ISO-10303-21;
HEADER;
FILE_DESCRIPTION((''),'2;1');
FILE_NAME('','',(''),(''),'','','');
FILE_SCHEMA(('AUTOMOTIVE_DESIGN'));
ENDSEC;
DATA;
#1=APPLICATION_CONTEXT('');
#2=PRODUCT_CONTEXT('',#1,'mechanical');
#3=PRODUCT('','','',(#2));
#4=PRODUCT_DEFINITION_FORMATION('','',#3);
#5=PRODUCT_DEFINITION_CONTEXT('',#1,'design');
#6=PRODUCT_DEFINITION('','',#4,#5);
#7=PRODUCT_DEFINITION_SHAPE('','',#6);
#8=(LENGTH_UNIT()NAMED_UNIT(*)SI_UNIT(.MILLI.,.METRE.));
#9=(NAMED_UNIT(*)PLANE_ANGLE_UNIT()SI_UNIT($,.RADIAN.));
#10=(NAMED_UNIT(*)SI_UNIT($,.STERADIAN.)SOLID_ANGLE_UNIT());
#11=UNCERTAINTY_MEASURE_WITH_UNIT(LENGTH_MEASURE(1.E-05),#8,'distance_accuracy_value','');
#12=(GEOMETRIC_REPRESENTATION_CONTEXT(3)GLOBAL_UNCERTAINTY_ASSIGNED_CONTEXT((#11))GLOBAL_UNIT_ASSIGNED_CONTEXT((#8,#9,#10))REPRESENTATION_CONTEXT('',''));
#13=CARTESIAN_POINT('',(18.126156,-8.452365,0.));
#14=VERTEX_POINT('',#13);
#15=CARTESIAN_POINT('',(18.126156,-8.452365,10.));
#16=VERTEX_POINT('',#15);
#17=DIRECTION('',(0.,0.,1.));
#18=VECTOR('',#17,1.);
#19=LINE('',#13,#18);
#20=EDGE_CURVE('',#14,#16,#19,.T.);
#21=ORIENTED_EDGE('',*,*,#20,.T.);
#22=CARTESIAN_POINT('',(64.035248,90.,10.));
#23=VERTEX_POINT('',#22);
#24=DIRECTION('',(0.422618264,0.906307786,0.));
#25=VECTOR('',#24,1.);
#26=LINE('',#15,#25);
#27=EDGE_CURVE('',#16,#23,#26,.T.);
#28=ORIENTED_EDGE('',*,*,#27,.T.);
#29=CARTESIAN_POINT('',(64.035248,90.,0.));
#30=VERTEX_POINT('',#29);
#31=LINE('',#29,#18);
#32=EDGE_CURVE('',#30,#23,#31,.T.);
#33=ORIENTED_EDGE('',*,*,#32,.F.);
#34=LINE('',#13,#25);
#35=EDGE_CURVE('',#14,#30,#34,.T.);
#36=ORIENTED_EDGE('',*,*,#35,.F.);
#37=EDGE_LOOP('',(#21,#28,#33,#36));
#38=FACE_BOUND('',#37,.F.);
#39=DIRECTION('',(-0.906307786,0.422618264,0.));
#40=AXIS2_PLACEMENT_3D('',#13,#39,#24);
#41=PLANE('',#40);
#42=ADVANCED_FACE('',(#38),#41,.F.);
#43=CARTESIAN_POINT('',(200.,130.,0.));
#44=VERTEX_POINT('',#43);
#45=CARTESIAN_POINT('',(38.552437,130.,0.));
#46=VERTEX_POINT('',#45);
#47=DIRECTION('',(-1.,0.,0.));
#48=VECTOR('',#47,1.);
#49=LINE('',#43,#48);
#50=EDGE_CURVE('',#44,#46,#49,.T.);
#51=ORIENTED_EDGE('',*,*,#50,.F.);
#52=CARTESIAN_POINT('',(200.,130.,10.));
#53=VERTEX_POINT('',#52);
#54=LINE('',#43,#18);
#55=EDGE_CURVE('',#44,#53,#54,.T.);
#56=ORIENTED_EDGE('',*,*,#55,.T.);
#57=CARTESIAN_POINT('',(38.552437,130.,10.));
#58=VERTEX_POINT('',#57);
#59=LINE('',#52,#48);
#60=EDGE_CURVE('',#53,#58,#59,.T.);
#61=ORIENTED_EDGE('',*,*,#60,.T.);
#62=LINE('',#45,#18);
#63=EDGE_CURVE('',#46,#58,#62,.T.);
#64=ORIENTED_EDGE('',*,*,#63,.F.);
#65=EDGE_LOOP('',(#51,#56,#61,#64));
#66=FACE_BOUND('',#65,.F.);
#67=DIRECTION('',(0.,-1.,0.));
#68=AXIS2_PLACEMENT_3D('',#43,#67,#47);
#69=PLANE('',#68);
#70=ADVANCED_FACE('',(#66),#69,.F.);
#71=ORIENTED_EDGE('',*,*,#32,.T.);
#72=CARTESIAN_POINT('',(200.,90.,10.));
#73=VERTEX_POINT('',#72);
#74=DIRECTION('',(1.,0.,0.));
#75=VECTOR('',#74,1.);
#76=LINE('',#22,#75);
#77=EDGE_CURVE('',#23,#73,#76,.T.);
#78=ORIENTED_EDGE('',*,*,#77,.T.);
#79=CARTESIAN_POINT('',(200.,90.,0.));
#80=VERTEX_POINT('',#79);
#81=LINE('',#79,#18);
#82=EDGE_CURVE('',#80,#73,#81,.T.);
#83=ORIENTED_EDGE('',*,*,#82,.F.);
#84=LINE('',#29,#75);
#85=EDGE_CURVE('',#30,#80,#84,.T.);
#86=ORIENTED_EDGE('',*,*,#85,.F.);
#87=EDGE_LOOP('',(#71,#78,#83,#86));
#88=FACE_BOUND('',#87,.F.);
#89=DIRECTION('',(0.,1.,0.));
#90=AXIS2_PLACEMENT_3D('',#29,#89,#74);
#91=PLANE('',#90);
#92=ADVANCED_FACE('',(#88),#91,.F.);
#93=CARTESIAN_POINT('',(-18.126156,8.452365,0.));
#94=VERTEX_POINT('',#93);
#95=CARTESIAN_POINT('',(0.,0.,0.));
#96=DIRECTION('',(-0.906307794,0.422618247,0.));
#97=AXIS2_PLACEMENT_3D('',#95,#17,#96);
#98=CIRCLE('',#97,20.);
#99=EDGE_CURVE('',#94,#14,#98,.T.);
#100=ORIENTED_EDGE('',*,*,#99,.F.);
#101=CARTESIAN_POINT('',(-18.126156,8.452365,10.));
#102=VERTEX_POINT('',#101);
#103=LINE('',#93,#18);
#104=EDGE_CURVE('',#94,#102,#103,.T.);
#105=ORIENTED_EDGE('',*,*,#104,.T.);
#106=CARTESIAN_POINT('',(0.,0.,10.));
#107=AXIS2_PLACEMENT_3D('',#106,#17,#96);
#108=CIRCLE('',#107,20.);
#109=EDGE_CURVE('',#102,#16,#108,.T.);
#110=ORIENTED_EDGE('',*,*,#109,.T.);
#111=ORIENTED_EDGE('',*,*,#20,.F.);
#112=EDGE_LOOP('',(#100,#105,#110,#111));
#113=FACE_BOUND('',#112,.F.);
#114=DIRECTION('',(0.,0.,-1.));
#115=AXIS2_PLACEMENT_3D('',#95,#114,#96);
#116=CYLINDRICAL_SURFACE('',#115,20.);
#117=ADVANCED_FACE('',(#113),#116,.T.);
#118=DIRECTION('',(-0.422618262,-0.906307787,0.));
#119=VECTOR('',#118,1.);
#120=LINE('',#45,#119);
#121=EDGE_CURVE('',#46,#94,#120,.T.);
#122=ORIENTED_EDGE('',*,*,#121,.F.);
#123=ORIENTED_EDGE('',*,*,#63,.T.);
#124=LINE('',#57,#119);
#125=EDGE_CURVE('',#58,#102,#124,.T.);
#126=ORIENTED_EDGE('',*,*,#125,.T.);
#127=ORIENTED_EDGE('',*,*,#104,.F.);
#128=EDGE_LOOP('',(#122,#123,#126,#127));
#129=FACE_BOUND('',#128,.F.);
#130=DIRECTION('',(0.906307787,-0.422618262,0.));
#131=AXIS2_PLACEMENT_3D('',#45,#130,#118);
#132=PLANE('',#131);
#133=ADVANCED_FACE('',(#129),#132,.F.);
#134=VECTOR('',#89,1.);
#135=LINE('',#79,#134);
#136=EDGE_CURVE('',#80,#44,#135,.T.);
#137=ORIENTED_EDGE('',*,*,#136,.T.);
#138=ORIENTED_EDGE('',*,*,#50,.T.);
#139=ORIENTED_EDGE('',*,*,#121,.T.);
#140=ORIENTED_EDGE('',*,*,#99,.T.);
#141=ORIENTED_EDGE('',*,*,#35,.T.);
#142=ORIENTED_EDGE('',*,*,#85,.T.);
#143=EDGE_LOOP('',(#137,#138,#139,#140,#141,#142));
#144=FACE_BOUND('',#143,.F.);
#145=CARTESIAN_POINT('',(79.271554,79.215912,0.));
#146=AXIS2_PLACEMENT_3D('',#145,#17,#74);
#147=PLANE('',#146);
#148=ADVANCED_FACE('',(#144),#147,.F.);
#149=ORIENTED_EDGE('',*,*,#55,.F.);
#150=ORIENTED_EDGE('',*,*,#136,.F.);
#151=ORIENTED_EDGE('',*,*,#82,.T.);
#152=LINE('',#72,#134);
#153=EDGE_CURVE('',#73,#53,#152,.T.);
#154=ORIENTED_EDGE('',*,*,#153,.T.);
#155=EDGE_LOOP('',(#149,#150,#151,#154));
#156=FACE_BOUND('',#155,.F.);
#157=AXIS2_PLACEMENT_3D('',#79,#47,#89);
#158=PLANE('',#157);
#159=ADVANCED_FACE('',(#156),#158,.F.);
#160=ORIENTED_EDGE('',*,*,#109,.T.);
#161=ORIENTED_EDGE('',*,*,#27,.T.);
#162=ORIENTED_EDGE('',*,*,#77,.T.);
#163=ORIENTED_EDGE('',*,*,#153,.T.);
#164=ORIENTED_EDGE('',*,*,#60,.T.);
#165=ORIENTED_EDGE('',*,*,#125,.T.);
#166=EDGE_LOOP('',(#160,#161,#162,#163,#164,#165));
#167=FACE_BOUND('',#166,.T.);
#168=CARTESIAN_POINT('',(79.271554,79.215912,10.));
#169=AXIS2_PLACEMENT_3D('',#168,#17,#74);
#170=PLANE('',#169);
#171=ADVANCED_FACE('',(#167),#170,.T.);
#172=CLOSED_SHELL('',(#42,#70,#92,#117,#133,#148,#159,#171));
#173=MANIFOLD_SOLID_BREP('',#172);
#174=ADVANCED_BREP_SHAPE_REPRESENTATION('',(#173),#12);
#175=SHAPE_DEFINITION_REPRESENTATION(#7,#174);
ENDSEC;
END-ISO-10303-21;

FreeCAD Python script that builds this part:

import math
import FreeCAD as App
import Part
import Sketcher
from FreeCAD import Vector
Q = App.Units.Quantity

doc = App.newDocument("Part")
body = doc.addObject("PartDesign::Body", "Body")

# Sketch on XY plane
sketch1 = doc.addObject("Sketcher::SketchObject", "Sketch")
body.addObject(sketch1)
sketch1.AttachmentSupport = (doc.XY_Plane, [""])
sketch1.MapMode = "FlatFace"
sketch1.addGeometry([
    Part.LineSegment(Vector(39, 130, 0), Vector(-18, 8, 0)),  # 0
    Part.ArcOfCircle(Part.Circle(Vector(0, 0, 0), Vector(0, 0, 1), 20), math.radians(155), math.radians(335)),  # 1
    Part.LineSegment(Vector(18, -8, 0), Vector(64, 90, 0)),  # 2
    Part.LineSegment(Vector(64, 90, 0), Vector(200, 90, 0)),  # 3
    Part.LineSegment(Vector(200, 90, 0), Vector(200, 130, 0)),  # 4
    Part.LineSegment(Vector(200, 130, 0), Vector(39, 130, 0)),  # 5
], False)
sketch1.addConstraint([
    Sketcher.Constraint("Tangent", 0, 2, 1, 1),
    Sketcher.Constraint("Tangent", 1, 2, 2, 1),
    Sketcher.Constraint("Coincident", 2, 2, 3, 1),
    Sketcher.Constraint("Coincident", 3, 2, 4, 1),
    Sketcher.Constraint("Coincident", 4, 2, 5, 1),
    Sketcher.Constraint("Coincident", 5, 2, 0, 1),
    Sketcher.Constraint("Horizontal", 3),
    Sketcher.Constraint("Vertical", 4),
    Sketcher.Constraint("Horizontal", 5),
    Sketcher.Constraint("Coincident", 1, 3, -1, 1),
    Sketcher.Constraint("Parallel", 0, 2),
    Sketcher.Constraint("Radius", 1, 20.0),
    Sketcher.Constraint("DistanceY", 4, 1, 4, 2, 40.0),
    Sketcher.Constraint("Angle", 0, Q("-115 deg")),
    Sketcher.Constraint("DistanceY", -1, 1, 2, 2, 90.0),
    Sketcher.Constraint("DistanceX", -1, 1, 3, 2, 200.0),
])
pad1 = doc.addObject("PartDesign::Pad", "Pad")
body.addObject(pad1)
pad1.Profile = sketch1
pad1.Length = 10

doc.recompute()
